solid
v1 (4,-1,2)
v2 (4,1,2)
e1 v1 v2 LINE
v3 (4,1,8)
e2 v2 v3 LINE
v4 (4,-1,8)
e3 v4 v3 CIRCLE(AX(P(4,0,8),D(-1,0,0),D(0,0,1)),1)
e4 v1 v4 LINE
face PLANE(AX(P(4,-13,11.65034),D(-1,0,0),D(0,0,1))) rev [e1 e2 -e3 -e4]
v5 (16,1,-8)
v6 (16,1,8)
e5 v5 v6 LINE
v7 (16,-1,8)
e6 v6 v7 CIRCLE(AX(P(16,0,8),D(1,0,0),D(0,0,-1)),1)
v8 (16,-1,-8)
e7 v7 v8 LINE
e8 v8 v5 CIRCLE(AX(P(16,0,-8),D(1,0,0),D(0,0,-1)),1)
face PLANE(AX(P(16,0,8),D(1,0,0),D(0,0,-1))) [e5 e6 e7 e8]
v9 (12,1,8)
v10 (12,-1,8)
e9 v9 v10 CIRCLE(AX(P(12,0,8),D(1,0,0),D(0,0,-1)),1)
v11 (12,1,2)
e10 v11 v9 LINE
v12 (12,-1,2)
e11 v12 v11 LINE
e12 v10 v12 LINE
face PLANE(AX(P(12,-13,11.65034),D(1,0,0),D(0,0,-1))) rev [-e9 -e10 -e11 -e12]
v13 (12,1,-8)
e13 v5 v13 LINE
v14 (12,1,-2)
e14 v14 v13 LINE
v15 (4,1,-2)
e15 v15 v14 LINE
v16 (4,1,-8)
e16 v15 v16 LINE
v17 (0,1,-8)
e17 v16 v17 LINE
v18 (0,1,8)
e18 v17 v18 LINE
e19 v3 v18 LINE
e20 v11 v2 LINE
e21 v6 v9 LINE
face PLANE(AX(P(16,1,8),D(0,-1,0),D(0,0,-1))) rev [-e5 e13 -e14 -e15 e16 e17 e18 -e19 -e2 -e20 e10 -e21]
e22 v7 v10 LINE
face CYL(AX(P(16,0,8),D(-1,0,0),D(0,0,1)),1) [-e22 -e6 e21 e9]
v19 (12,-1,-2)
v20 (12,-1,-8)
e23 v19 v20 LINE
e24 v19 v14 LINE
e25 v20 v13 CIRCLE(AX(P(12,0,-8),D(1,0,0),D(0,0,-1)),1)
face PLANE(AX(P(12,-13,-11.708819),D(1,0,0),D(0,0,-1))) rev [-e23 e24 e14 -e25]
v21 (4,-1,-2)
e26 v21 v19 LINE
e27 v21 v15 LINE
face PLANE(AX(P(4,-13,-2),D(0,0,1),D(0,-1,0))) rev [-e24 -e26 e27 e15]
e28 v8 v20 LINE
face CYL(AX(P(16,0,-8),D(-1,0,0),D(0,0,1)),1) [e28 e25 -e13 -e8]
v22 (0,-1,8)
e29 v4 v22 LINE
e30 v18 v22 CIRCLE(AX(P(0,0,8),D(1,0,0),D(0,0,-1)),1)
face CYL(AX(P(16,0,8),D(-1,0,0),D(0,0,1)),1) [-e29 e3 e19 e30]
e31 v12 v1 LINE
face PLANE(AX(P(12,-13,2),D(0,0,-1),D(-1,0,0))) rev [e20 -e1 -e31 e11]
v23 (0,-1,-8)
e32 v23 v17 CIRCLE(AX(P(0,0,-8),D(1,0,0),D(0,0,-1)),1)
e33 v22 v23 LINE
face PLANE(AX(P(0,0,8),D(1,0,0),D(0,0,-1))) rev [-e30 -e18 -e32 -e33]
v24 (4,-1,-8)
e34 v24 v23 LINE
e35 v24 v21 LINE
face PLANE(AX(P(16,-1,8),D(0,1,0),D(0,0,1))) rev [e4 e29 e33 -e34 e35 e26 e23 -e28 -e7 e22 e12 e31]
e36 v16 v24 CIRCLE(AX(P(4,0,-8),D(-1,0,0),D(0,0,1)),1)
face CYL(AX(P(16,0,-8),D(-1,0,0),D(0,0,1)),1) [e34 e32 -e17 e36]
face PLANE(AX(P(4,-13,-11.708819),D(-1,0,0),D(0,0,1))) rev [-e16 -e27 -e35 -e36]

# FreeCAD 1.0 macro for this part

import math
import FreeCAD as App
import Part
import Sketcher


def add_polygon(sketch, points):
    """Adds a closed chain of lines whose ends are joined by coincident constraints."""
    first, n = sketch.GeometryCount, len(points)
    for a, b in zip(points, points[1:] + points[:1]):
        sketch.addGeometry(Part.LineSegment(App.Vector(*a, 0), App.Vector(*b, 0)), False)
    for i in range(n):
        sketch.addConstraint(Sketcher.Constraint("Coincident", first + i, 2, first + (i + 1) % n, 1))

doc = App.newDocument("Part")
body = doc.addObject("PartDesign::Body", "Body")

sketch1 = doc.addObject("Sketcher::SketchObject", "Sketch")
body.addObject(sketch1)
sketch1.AttachmentSupport = (doc.YZ_Plane, [""])
sketch1.MapMode = "FlatFace"
sketch1.addGeometry(Part.LineSegment(App.Vector(1, -8, 0), App.Vector(1, 8, 0)), False)
sketch1.addGeometry(Part.ArcOfCircle(Part.Circle(App.Vector(0, 8, 0), App.Vector(0, 0, 1), 1), math.radians(0), math.radians(180)), False)
sketch1.addGeometry(Part.LineSegment(App.Vector(-1, 8, 0), App.Vector(-1, -8, 0)), False)
sketch1.addGeometry(Part.ArcOfCircle(Part.Circle(App.Vector(0, -8, 0), App.Vector(0, 0, 1), 1), math.radians(180), math.radians(360)), False)
sketch1.addConstraint(Sketcher.Constraint("Tangent", 0, 2, 1, 1))
sketch1.addConstraint(Sketcher.Constraint("Tangent", 1, 2, 2, 1))
sketch1.addConstraint(Sketcher.Constraint("Tangent", 2, 2, 3, 1))
sketch1.addConstraint(Sketcher.Constraint("Tangent", 3, 2, 0, 1))
sketch1.addConstraint(Sketcher.Constraint("Vertical", 0))
sketch1.addConstraint(Sketcher.Constraint("Vertical", 2))
sketch1.addConstraint(Sketcher.Constraint("Symmetric", 1, 3, 3, 3, -1, 1))
sketch1.addConstraint(Sketcher.Constraint("Radius", 1, 1.0))
sketch1.addConstraint(Sketcher.Constraint("DistanceY", 0, 1, 0, 2, 16.0))
pad1 = doc.addObject("PartDesign::Pad", "Pad")
body.addObject(pad1)
pad1.Profile = sketch1
pad1.Length = 16

sketch2 = doc.addObject("Sketcher::SketchObject", "Sketch001")
body.addObject(sketch2)
sketch2.AttachmentSupport = (doc.XZ_Plane, [""])
sketch2.MapMode = "FlatFace"
sketch2.AttachmentOffset = App.Placement(App.Vector(0, 0, -1), App.Rotation())
add_polygon(sketch2, [(4, -12), (4, -2), (12, -2), (12, -12)])
add_polygon(sketch2, [(4, 2), (4, 12), (12, 12), (12, 2)])
sketch2.addConstraint(Sketcher.Constraint("Vertical", 0))
sketch2.addConstraint(Sketcher.Constraint("Horizontal", 1))
sketch2.addConstraint(Sketcher.Constraint("Vertical", 2))
sketch2.addConstraint(Sketcher.Constraint("Horizontal", 3))
sketch2.addConstraint(Sketcher.Constraint("Vertical", 4))
sketch2.addConstraint(Sketcher.Constraint("Horizontal", 5))
sketch2.addConstraint(Sketcher.Constraint("Vertical", 6))
sketch2.addConstraint(Sketcher.Constraint("Horizontal", 7))
sketch2.addConstraint(Sketcher.Constraint("Symmetric", 1, 2, 6, 2, -1))
sketch2.addConstraint(Sketcher.Constraint("Vertical", 3, 2, 4, 2))
sketch2.addConstraint(Sketcher.Constraint("DistanceX", 1, 1, 1, 2, 8.0))
sketch2.addConstraint(Sketcher.Constraint("DistanceX", -1, 1, 0, 2, 4.0))
sketch2.addConstraint(Sketcher.Constraint("DistanceY", 0, 2, -1, 1, 2.0))
sketch2.addConstraint(Sketcher.Constraint("DistanceY", 0, 1, 0, 2, 9.708819))
sketch2.addConstraint(Sketcher.Constraint("DistanceY", 4, 1, 4, 2, 9.65034))
pocket1 = doc.addObject("PartDesign::Pocket", "Pocket")
body.addObject(pocket1)
pocket1.Profile = sketch2
pocket1.Length = 14
pocket1.Reversed = True

doc.recompute()
